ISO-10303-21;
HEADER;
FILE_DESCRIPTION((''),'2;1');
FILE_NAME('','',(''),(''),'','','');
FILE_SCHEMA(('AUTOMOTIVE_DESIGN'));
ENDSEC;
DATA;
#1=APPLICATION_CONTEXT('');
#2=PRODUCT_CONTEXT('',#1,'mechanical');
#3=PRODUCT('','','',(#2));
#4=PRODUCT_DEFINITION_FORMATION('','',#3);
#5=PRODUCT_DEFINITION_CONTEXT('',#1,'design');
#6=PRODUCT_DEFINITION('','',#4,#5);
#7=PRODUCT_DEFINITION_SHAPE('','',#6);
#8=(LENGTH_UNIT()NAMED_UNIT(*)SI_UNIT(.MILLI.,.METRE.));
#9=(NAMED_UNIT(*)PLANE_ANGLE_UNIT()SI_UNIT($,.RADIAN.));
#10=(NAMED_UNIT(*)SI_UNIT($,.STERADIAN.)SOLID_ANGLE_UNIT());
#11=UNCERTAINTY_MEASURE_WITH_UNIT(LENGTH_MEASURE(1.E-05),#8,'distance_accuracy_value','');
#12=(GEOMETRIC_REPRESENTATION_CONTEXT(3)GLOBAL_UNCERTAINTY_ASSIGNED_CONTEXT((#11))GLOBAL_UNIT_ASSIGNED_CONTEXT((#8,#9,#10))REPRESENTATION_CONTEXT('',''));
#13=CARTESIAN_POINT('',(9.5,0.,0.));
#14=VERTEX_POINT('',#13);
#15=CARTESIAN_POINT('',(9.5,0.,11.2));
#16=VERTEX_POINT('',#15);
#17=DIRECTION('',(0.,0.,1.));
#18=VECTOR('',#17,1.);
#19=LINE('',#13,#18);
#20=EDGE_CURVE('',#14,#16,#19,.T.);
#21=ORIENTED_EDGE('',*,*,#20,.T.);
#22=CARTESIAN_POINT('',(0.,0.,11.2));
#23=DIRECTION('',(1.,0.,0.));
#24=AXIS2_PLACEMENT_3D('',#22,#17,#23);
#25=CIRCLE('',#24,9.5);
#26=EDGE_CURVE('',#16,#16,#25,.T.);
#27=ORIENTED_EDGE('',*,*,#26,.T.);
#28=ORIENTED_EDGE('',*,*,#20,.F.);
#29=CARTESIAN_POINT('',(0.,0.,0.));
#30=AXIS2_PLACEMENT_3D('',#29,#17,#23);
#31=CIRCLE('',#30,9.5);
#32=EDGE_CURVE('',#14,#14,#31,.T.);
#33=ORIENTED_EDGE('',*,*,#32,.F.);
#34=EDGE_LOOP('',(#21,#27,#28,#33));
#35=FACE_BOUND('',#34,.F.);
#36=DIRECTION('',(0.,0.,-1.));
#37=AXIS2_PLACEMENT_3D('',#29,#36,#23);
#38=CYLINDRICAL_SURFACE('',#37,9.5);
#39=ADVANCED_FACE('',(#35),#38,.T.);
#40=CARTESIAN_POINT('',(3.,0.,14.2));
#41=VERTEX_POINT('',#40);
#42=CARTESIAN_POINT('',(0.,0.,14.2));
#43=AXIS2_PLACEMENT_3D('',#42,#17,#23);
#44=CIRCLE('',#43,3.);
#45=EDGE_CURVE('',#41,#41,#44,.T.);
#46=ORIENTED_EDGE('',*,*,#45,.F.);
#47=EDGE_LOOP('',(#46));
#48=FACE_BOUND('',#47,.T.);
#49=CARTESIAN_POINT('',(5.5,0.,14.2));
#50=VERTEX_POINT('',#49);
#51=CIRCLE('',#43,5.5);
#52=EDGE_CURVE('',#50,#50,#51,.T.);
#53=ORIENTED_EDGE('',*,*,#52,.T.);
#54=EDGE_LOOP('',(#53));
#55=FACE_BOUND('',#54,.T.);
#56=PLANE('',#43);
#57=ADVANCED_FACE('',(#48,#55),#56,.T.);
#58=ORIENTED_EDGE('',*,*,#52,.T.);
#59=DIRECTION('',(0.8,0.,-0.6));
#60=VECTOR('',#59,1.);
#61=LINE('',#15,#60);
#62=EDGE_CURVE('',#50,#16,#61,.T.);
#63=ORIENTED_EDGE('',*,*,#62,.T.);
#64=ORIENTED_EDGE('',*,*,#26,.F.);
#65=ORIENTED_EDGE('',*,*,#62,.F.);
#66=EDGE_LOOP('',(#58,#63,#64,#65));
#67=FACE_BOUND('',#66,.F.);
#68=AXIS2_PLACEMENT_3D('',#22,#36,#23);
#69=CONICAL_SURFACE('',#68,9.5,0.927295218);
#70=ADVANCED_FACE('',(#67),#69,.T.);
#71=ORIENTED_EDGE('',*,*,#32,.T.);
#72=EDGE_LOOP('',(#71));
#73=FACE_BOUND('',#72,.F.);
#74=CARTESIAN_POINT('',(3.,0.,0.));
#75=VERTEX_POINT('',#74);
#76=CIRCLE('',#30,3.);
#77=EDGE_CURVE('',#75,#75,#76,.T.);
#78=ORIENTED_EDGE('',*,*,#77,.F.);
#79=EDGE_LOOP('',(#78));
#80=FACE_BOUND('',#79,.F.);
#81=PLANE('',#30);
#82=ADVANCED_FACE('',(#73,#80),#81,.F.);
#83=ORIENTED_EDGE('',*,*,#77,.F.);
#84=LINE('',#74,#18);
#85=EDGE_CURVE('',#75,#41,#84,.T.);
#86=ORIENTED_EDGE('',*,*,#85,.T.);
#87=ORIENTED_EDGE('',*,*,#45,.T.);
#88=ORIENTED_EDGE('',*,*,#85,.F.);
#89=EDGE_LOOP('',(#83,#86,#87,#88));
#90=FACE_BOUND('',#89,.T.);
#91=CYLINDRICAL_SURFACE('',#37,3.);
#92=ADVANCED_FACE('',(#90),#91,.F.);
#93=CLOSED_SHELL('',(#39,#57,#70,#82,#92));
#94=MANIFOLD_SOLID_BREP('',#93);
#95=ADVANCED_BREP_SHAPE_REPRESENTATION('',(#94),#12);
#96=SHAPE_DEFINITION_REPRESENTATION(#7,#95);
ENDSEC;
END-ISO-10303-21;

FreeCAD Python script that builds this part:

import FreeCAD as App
import Part
import Sketcher

V = App.Vector
Q = App.Units.Quantity


def edges_at(feature, points):
    """Names of the edges that pass closest to the given points."""
    edges = feature.Shape.Edges
    near = lambda p: min(range(len(edges)), key=lambda i: edges[i].distToShape(Part.Vertex(*p))[0])
    return sorted({f"Edge{near(p) + 1}" for p in points})

doc = App.newDocument("Part")
body = doc.addObject("PartDesign::Body", "Body")

sketch1 = body.newObject("Sketcher::SketchObject", "Sketch")
sketch1.AttachmentSupport = (doc.getObject("XY_Plane"), [""])
sketch1.MapMode = "FlatFace"
sketch1.addGeometry([
    Part.Circle(V(0, 0, 0), V(0, 0, 1), 9.5),
    Part.Circle(V(0, 0, 0), V(0, 0, 1), 3),
], False)
sketch1.addConstraint([
    Sketcher.Constraint("Coincident", 0, 3, -1, 1),
    Sketcher.Constraint("Coincident", 1, 3, -1, 1),
    Sketcher.Constraint("Diameter", 0, Q("19 mm")),
    Sketcher.Constraint("Diameter", 1, Q("6 mm")),
])
pad1 = body.newObject("PartDesign::Pad", "Pad")
pad1.Profile = sketch1
pad1.Length = 14.2
doc.recompute()

chamfer = body.newObject("PartDesign::Chamfer", "Chamfer")
chamfer.Base = (pad1, edges_at(pad1, [(-9.5, 0, 14.2)]))
chamfer.ChamferType = "Two distances"
chamfer.Size = 4
chamfer.Size2 = 3
chamfer.FlipDirection = True

doc.recompute()
